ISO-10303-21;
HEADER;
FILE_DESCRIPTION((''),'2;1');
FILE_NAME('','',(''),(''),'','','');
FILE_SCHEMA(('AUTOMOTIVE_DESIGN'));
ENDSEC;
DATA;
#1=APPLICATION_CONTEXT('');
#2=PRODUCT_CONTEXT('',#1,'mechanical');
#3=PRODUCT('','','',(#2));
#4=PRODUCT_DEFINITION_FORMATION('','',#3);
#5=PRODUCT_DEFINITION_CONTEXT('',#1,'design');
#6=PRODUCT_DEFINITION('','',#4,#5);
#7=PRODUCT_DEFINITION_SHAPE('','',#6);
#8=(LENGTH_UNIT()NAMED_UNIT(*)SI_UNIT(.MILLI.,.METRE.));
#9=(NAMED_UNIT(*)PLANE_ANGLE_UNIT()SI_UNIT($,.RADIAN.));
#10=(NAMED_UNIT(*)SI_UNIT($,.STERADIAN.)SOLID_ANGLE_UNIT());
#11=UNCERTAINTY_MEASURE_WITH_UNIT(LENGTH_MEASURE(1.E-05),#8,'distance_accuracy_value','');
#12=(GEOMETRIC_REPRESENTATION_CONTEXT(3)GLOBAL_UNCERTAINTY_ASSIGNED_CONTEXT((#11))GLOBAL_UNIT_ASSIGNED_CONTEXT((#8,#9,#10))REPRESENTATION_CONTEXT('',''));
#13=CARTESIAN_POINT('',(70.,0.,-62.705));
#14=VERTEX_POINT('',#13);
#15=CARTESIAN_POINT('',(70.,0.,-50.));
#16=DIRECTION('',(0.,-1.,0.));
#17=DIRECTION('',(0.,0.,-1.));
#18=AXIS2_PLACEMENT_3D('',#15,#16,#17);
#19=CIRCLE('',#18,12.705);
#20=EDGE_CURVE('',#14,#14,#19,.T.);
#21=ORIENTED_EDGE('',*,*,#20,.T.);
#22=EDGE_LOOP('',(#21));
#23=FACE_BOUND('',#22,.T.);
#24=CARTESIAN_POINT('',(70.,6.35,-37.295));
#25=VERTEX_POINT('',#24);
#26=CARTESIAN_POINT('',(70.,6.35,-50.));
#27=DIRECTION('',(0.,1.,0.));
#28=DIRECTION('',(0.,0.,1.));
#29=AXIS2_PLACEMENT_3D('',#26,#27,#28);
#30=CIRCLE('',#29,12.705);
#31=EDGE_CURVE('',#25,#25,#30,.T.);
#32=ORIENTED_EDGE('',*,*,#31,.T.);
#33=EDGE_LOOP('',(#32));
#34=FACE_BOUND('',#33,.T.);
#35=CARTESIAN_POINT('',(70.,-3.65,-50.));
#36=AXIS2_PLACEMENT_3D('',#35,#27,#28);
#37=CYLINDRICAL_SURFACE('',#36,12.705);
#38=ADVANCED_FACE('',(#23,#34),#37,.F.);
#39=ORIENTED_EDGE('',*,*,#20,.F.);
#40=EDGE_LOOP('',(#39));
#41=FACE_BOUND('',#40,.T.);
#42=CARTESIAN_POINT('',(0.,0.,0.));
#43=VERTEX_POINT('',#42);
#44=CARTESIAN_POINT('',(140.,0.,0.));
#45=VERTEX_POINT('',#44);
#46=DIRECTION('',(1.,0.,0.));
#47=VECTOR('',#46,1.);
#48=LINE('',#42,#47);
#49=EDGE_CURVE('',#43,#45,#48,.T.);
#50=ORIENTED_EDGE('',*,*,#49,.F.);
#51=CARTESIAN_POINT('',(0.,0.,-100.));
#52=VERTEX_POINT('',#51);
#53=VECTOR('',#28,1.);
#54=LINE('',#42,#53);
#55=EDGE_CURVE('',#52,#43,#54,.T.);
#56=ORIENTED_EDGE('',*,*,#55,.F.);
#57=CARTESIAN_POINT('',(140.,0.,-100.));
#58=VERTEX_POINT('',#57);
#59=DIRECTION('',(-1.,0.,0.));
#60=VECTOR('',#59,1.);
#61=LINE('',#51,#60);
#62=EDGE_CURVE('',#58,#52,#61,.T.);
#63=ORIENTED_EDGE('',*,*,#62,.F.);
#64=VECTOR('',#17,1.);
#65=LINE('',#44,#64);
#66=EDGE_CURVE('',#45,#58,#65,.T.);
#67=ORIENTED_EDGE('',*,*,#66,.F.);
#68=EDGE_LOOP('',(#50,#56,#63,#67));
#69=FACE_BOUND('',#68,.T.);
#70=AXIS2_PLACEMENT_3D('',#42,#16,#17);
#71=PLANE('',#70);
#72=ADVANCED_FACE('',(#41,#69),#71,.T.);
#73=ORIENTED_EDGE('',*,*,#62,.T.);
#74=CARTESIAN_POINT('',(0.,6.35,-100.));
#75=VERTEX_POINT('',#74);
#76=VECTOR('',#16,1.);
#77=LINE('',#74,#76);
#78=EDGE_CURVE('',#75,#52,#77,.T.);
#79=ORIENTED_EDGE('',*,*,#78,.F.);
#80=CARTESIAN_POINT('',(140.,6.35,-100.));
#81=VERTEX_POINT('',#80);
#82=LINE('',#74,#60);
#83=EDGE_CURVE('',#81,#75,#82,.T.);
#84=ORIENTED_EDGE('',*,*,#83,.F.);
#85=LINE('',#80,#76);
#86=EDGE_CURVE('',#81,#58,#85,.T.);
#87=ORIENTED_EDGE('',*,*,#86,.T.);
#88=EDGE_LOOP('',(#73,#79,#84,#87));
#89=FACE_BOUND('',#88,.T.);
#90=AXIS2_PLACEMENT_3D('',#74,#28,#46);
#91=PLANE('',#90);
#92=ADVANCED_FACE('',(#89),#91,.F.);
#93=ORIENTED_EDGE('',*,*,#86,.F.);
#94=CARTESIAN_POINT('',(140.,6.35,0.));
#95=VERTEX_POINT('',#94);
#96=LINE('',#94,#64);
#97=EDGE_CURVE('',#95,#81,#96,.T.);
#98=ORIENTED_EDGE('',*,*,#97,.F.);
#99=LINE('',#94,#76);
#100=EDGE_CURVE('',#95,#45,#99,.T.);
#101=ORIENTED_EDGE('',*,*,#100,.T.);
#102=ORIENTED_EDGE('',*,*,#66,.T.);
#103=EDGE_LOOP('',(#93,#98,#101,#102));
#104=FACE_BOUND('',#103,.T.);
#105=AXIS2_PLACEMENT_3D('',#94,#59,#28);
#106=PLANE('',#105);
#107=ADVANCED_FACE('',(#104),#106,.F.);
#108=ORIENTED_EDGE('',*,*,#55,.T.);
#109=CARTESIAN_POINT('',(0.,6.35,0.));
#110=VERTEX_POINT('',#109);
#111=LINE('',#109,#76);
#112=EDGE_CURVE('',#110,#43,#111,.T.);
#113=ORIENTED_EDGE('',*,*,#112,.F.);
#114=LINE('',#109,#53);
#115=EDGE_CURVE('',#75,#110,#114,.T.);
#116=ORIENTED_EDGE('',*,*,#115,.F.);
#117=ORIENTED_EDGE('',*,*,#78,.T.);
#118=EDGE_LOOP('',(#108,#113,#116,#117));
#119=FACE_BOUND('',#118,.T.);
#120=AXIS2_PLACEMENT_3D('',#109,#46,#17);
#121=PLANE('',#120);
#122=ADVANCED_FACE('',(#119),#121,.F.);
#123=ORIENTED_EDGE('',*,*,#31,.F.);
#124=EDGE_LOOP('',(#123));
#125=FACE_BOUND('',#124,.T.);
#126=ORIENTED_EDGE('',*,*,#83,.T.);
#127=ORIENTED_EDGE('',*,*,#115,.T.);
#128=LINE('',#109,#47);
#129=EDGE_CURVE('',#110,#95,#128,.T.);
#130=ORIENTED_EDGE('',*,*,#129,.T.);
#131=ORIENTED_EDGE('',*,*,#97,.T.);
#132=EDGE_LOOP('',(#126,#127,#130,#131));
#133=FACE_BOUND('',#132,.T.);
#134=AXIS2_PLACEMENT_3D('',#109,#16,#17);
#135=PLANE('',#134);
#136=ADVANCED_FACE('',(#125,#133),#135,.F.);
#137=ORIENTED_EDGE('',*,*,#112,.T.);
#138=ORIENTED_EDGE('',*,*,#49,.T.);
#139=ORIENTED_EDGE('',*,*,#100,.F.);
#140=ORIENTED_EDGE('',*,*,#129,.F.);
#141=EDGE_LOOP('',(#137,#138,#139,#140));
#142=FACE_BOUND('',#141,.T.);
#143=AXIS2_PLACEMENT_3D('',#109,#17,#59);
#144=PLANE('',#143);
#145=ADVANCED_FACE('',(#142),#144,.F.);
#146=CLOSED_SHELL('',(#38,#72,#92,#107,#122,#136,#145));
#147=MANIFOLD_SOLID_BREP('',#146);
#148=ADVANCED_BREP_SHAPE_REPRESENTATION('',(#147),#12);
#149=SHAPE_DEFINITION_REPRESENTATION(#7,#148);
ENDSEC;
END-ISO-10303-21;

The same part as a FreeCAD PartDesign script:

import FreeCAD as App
import Part
import Sketcher
from FreeCAD import Vector
Q = App.Units.Quantity


def add_polygon(sketch, points):
    """Adds a closed chain of lines whose ends are joined by coincident constraints."""
    first, n = sketch.GeometryCount, len(points)
    for a, b in zip(points, points[1:] + points[:1]):
        sketch.addGeometry(Part.LineSegment(App.Vector(*a, 0), App.Vector(*b, 0)), False)
    for i in range(n):
        sketch.addConstraint(Sketcher.Constraint("Coincident", first + i, 2, first + (i + 1) % n, 1))

doc = App.newDocument("Part")
body = doc.addObject("PartDesign::Body", "Body")

sketch1 = doc.addObject("Sketcher::SketchObject", "Sketch")
body.addObject(sketch1)
sketch1.AttachmentSupport = (doc.XZ_Plane, [""])
sketch1.MapMode = "FlatFace"
add_polygon(sketch1, [(0, -100), (0, 0), (140, 0), (140, -100)])
sketch1.addConstraint([
    Sketcher.Constraint("Vertical", 0),
    Sketcher.Constraint("Horizontal", 1),
    Sketcher.Constraint("Vertical", 2),
    Sketcher.Constraint("Horizontal", 3),
    Sketcher.Constraint("Coincident", 0, 2, -1, 1),
    Sketcher.Constraint("DistanceX", 1, 1, 1, 2, Q("140 mm")),
    Sketcher.Constraint("DistanceY", 0, 1, 0, 2, Q("100 mm")),
])
pad1 = doc.addObject("PartDesign::Pad", "Pad")
body.addObject(pad1)
pad1.Profile = sketch1
pad1.Length = 6.35
pad1.Reversed = True

sketch2 = doc.addObject("Sketcher::SketchObject", "Sketch001")
body.addObject(sketch2)
sketch2.AttachmentSupport = (doc.XZ_Plane, [""])
sketch2.MapMode = "FlatFace"
sketch2.AttachmentOffset = App.Placement(Vector(0, 0, -6.35), App.Rotation())
sketch2.addGeometry(Part.Circle(Vector(70, -50, 0), Vector(0, 0, 1), 13), False)
sketch2.addConstraint([
    Sketcher.Constraint("Diameter", 0, Q("25.41 mm")),
    Sketcher.Constraint("DistanceX", -1, 1, 0, 3, Q("70 mm")),
    Sketcher.Constraint("DistanceY", 0, 3, -1, 1, Q("50 mm")),
])
pocket1 = doc.addObject("PartDesign::Pocket", "Pocket")
body.addObject(pocket1)
pocket1.Profile = sketch2
pocket1.Length = 10
pocket1.Reversed = True

doc.recompute()
